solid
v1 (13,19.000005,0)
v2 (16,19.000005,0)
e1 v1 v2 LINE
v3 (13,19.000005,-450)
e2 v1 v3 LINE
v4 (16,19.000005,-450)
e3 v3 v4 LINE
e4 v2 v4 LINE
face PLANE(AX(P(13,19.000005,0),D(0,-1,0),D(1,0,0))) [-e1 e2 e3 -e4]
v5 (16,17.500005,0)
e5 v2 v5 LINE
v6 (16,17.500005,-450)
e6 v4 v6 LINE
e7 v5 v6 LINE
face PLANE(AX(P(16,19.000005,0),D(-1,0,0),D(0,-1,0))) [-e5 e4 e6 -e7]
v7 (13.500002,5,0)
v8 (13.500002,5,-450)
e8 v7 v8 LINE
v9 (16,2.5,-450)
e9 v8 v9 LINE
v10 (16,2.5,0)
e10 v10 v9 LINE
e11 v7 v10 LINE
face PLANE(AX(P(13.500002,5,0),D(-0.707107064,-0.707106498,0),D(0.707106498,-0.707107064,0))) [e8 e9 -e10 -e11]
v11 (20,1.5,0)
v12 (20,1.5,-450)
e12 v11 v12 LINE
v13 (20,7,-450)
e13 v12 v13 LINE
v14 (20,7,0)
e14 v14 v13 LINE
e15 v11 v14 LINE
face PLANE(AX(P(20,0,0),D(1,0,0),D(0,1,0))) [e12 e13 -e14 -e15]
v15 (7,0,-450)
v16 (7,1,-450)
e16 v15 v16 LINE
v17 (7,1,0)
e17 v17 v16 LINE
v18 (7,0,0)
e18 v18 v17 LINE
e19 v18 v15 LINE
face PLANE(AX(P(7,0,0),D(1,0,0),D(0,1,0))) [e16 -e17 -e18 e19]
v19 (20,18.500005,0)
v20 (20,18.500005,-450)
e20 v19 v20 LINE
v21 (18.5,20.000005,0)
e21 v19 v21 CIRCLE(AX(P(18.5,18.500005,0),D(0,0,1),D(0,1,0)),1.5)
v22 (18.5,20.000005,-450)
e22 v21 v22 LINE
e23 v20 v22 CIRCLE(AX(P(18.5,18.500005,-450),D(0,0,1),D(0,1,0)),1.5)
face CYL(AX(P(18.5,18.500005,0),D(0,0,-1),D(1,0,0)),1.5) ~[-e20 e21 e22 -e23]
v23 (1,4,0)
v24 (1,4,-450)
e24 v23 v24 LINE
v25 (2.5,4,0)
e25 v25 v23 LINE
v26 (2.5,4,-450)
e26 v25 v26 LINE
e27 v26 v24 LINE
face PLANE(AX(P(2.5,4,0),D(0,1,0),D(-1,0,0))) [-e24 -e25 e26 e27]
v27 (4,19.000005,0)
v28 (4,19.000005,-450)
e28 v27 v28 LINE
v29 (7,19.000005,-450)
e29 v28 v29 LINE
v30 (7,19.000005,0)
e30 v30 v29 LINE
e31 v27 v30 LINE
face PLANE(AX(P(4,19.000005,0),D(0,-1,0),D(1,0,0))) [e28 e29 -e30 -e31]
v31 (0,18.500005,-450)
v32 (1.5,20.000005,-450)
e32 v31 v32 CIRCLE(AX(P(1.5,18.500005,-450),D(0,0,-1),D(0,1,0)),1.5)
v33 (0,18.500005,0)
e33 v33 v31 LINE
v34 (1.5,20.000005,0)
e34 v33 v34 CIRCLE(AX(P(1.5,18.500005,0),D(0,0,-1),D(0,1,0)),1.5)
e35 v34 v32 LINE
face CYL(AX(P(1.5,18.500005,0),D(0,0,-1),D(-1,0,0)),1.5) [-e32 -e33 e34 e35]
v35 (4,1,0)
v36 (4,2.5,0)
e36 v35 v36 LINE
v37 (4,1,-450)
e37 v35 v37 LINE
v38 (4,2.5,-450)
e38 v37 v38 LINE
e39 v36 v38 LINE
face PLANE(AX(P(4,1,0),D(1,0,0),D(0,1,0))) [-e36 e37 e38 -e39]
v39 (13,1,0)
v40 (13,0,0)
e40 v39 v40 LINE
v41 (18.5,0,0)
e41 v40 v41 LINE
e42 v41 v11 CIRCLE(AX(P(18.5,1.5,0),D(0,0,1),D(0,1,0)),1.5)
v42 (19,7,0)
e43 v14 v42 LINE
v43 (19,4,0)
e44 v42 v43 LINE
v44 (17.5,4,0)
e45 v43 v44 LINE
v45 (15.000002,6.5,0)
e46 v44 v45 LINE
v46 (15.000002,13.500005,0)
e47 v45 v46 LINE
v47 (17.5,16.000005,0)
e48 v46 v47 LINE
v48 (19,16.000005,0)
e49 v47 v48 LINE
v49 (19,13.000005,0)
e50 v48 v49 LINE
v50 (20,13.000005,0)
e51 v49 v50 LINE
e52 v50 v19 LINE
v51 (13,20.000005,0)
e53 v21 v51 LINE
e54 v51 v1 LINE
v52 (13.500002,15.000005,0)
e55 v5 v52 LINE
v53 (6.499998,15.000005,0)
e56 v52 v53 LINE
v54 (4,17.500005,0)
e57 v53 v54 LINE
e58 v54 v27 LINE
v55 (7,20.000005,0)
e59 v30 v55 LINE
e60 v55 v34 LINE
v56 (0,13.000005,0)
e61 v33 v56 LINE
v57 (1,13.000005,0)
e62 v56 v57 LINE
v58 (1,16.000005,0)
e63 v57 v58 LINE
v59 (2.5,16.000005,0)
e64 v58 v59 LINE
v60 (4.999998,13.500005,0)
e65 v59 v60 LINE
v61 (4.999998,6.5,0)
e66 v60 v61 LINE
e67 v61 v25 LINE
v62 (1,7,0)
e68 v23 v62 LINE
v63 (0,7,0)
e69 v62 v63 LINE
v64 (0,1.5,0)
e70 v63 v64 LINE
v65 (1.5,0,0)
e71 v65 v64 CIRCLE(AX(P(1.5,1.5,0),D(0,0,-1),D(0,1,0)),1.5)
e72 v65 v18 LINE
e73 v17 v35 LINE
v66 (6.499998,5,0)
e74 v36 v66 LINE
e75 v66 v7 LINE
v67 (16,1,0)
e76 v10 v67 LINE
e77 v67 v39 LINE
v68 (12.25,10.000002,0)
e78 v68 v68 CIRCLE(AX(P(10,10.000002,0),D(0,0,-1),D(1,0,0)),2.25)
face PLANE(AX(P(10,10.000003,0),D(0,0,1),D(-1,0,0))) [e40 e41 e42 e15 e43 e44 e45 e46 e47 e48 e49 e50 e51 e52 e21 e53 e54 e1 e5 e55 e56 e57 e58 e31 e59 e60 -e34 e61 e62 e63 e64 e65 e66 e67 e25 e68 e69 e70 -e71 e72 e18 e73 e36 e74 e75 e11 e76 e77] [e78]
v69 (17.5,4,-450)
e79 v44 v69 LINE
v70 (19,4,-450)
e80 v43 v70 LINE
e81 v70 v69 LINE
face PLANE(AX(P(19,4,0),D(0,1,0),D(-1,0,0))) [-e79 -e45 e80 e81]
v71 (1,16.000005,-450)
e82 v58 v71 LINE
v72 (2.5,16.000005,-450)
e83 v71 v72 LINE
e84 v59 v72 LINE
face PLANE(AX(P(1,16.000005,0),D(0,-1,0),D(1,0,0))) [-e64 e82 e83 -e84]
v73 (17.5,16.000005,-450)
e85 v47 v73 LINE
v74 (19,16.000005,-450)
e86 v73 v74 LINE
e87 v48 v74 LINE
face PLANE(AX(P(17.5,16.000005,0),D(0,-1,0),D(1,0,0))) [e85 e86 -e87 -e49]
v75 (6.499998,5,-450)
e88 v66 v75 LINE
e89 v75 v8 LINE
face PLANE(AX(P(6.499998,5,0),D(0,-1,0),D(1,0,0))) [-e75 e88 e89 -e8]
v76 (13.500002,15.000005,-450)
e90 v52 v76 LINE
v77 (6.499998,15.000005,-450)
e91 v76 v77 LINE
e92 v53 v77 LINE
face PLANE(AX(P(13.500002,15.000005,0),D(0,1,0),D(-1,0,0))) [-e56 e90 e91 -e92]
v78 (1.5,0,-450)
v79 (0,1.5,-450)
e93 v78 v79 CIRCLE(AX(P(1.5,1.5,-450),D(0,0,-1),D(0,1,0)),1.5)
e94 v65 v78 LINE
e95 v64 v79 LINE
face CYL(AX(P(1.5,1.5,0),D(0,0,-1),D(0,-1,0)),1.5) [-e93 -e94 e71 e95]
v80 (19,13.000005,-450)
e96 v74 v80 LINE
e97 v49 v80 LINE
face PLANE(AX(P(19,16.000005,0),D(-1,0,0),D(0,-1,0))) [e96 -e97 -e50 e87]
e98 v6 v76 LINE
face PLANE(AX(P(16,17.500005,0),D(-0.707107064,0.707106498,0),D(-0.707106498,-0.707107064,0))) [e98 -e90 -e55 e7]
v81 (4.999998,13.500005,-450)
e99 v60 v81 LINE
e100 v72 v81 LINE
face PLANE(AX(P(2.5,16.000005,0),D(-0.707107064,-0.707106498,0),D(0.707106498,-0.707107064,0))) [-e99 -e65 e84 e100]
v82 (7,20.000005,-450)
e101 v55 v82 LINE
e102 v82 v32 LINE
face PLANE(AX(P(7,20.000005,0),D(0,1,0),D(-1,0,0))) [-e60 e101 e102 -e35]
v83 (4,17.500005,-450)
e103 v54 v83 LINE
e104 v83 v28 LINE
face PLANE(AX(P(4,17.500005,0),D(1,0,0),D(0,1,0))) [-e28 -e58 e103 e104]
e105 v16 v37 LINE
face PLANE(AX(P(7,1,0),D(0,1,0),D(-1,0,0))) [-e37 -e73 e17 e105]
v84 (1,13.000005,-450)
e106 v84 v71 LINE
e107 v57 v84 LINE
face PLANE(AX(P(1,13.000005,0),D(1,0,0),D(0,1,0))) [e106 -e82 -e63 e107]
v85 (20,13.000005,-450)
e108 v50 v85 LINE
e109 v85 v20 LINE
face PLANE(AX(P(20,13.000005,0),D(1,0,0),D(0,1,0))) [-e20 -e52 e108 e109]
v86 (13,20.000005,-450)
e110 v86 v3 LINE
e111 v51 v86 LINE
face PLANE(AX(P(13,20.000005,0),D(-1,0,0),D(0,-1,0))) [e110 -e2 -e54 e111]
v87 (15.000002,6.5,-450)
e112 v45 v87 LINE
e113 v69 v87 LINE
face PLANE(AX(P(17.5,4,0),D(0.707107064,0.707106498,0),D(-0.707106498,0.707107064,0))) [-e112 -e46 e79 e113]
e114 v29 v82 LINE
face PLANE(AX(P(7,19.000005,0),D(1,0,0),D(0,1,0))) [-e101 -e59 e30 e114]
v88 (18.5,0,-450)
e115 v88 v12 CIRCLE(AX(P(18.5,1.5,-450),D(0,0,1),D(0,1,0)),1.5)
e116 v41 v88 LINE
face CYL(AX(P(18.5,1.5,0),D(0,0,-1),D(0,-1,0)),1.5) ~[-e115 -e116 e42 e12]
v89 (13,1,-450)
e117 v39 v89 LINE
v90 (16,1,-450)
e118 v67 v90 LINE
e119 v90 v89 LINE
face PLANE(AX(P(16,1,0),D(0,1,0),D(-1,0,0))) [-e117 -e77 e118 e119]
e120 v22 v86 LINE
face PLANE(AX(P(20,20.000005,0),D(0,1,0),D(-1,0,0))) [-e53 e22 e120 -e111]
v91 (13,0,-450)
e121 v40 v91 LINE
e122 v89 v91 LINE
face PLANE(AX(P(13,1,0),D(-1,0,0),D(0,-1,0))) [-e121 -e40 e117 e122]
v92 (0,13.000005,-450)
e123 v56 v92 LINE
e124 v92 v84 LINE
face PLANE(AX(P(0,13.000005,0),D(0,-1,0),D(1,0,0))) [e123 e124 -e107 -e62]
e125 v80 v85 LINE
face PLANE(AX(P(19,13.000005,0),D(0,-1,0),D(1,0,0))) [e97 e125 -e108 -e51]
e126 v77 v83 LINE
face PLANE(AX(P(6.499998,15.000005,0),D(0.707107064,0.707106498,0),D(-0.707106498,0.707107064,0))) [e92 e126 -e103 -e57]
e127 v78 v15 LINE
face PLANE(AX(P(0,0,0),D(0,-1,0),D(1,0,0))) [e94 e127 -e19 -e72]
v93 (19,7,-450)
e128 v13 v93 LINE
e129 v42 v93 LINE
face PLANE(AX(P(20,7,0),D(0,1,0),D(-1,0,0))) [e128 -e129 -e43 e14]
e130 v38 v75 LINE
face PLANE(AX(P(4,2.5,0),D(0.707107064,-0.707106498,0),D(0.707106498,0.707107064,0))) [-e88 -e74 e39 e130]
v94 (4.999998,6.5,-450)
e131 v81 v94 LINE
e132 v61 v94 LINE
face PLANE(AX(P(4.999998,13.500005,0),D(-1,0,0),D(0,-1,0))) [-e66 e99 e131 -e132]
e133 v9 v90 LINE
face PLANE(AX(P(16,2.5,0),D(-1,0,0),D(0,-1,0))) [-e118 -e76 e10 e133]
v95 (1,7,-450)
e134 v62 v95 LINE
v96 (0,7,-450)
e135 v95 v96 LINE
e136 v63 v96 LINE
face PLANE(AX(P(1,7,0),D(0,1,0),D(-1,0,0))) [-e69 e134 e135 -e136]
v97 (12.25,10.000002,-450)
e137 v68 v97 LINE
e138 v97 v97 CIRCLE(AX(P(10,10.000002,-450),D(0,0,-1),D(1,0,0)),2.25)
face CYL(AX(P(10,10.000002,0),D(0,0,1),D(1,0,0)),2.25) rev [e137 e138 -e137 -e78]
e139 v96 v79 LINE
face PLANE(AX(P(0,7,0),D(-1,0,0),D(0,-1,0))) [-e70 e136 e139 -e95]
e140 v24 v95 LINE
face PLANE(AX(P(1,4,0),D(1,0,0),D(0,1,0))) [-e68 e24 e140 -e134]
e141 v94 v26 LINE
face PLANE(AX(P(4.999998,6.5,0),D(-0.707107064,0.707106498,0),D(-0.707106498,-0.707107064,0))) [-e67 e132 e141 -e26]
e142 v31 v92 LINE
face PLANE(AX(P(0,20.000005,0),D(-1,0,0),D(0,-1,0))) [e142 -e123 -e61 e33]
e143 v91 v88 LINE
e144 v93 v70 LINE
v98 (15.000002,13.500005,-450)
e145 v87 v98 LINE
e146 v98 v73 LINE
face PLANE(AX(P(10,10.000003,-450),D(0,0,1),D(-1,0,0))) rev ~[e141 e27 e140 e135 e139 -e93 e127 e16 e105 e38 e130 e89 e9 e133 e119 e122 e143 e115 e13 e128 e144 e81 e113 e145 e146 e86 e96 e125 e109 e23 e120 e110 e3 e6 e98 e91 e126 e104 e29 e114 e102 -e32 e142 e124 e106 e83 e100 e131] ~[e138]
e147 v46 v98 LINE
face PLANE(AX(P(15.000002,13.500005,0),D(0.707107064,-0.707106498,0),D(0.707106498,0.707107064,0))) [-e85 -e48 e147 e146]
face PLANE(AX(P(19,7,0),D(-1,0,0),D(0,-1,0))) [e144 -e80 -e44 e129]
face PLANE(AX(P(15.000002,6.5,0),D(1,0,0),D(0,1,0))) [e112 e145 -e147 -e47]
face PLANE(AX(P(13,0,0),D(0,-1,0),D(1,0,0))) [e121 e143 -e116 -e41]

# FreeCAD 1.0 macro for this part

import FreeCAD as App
import Part
import Sketcher

V = App.Vector


def edges_at(feature, points):
    """Names of the edges that pass closest to the given points."""
    edges = feature.Shape.Edges
    near = lambda p: min(range(len(edges)), key=lambda i: edges[i].distToShape(Part.Vertex(*p))[0])
    return sorted({f"Edge{near(p) + 1}" for p in points})


def add_polygon(sketch, points):
    """Adds a closed chain of lines whose ends are joined by coincident constraints."""
    first, n = sketch.GeometryCount, len(points)
    for a, b in zip(points, points[1:] + points[:1]):
        sketch.addGeometry(Part.LineSegment(App.Vector(*a, 0), App.Vector(*b, 0)), False)
    for i in range(n):
        sketch.addConstraint(Sketcher.Constraint("Coincident", first + i, 2, first + (i + 1) % n, 1))

doc = App.newDocument("Part")
params = doc.addObject("Spreadsheet::Sheet", "Params")
for row, (alias, value) in enumerate([
    ("sketch1_diameter", "4.5 mm"),
    ("sketch1_width", "7 mm"),
    ("sketch1_width2", "1 mm"),
    ("sketch1_width3", "3 mm"),
    ("sketch1_width4", "1.5 mm"),
    ("pad1_length", "450 mm"),
    ("fillet_radius", "1.5 mm"),
], start=1):
    params.set(f"A{row}", alias)
    params.set(f"B{row}", "=" + value)
    params.setAlias(f"B{row}", alias)

body = doc.addObject("PartDesign::Body", "Body")

# Sketch on XY plane
sketch1 = body.newObject("Sketcher::SketchObject", "Sketch")
sketch1.AttachmentSupport = (doc.getObject("XY_Plane"), [""])
sketch1.MapMode = "FlatFace"
add_polygon(sketch1, [(7, 1), (7, 0), (0, 0), (0, 7), (1, 7), (1, 4), (2.5, 4), (5, 6.5), (5, 13.5), (2.5, 16), (1, 16), (1, 13), (0, 13), (0, 20), (7, 20), (7, 19), (4, 19), (4, 17.5), (6.5, 15), (13.5, 15), (16, 17.5), (16, 19), (13, 19), (13, 20), (20, 20), (20, 13), (19, 13), (19, 16), (17.5, 16), (15, 13.5), (15, 6.5), (17.5, 4), (19, 4), (19, 7), (20, 7), (20, 0), (13, 0), (13, 1), (16, 1), (16, 2.5), (13.5, 5), (6.5, 5), (4, 2.5), (4, 1)])  # lines 0-43
sketch1.addGeometry(Part.Circle(V(10, 10, 0), V(0, 0, 1), 2.2), False)  # 44
sketch1.addConstraint([
    Sketcher.Constraint("Vertical", 0),
    Sketcher.Constraint("Horizontal", 1),
    Sketcher.Constraint("Vertical", 2),
    Sketcher.Constraint("Horizontal", 3),
    Sketcher.Constraint("Vertical", 4),
    Sketcher.Constraint("Horizontal", 5),
    Sketcher.Constraint("Vertical", 7),
    Sketcher.Constraint("Horizontal", 9),
    Sketcher.Constraint("Vertical", 10),
    Sketcher.Constraint("Horizontal", 11),
    Sketcher.Constraint("Vertical", 12),
    Sketcher.Constraint("Horizontal", 13),
    Sketcher.Constraint("Vertical", 14),
    Sketcher.Constraint("Horizontal", 15),
    Sketcher.Constraint("Vertical", 16),
    Sketcher.Constraint("Horizontal", 18),
    Sketcher.Constraint("Vertical", 20),
    Sketcher.Constraint("Horizontal", 21),
    Sketcher.Constraint("Vertical", 22),
    Sketcher.Constraint("Horizontal", 23),
    Sketcher.Constraint("Vertical", 24),
    Sketcher.Constraint("Horizontal", 25),
    Sketcher.Constraint("Vertical", 26),
    Sketcher.Constraint("Horizontal", 27),
    Sketcher.Constraint("Vertical", 29),
    Sketcher.Constraint("Horizontal", 31),
    Sketcher.Constraint("Vertical", 32),
    Sketcher.Constraint("Horizontal", 33),
    Sketcher.Constraint("Vertical", 34),
    Sketcher.Constraint("Horizontal", 35),
    Sketcher.Constraint("Vertical", 36),
    Sketcher.Constraint("Horizontal", 37),
    Sketcher.Constraint("Vertical", 38),
    Sketcher.Constraint("Horizontal", 40),
    Sketcher.Constraint("Vertical", 42),
    Sketcher.Constraint("Horizontal", 43),
    Sketcher.Constraint("Coincident", 1, 2, -1, 1),
    Sketcher.Constraint("PointOnObject", 11, 2, -2),
    Sketcher.Constraint("PointOnObject", 34, 2, -1),
    Sketcher.Constraint("Perpendicular", 6, 8),
    Sketcher.Constraint("Parallel", 8, 17),
    Sketcher.Constraint("Perpendicular", 17, 19),
    Sketcher.Constraint("Parallel", 19, 28),
    Sketcher.Constraint("Perpendicular", 28, 30),
    Sketcher.Constraint("Parallel", 30, 39),
    Sketcher.Constraint("Perpendicular", 39, 41),
    Sketcher.Constraint("Horizontal", 16, 2, 19, 2),
    Sketcher.Constraint("Horizontal", 15, 2, 20, 2),
    Sketcher.Constraint("Horizontal", 13, 2, 22, 2),
    Sketcher.Constraint("Horizontal", 11, 2, 24, 2),
    Sketcher.Constraint("Horizontal", 9, 2, 26, 2),
    Sketcher.Constraint("Horizontal", 7, 2, 28, 2),
    Sketcher.Constraint("Horizontal", 6, 2, 29, 2),
    Sketcher.Constraint("Horizontal", 5, 2, 30, 2),
    Sketcher.Constraint("Horizontal", 3, 2, 32, 2),
    Sketcher.Constraint("Horizontal", 38, 2, 41, 2),
    Sketcher.Constraint("Horizontal", 37, 2, 42, 2),
    Sketcher.Constraint("Vertical", 5, 2, 8, 2),
    Sketcher.Constraint("Vertical", 4, 2, 9, 2),
    Sketcher.Constraint("Vertical", 0, 2, 13, 2),
    Sketcher.Constraint("Vertical", 27, 2, 30, 2),
    Sketcher.Constraint("Vertical", 26, 2, 31, 2),
    Sketcher.Constraint("Vertical", 24, 2, 33, 2),
    Sketcher.Constraint("Vertical", 22, 2, 35, 2),
    Sketcher.Constraint("Vertical", 20, 2, 37, 2),
    Sketcher.Constraint("Vertical", 18, 2, 39, 2),
    Sketcher.Constraint("Vertical", 17, 2, 40, 2),
    Sketcher.Constraint("Equal", 15, 21),
    Sketcher.Constraint("Equal", 13, 23),
    Sketcher.Constraint("Equal", 11, 25),
    Sketcher.Constraint("Equal", 9, 27),
    Sketcher.Constraint("Equal", 33, 0),
    Sketcher.Constraint("Equal", 35, 2),
    Sketcher.Constraint("Equal", 43, 4),
    Sketcher.Constraint("Equal", 40, 7),
    Sketcher.Constraint("Equal", 4, 10),
    Sketcher.Constraint("Equal", 2, 12),
    Sketcher.Constraint("Equal", 0, 14),
    Sketcher.Constraint("Equal", 31, 16),
    Sketcher.Constraint("Equal", 20, 38),
    Sketcher.Constraint("Equal", 8, 17),
    Sketcher.Constraint("Diameter", 44, 4.5),
    Sketcher.Constraint("DistanceX", 1, 2, 1, 1, 7.0),
    Sketcher.Constraint("DistanceX", 3, 1, 3, 2, 1.0),
    Sketcher.Constraint("DistanceX", 15, 2, 15, 1, 3.0),
    Sketcher.Constraint("DistanceX", 5, 1, 5, 2, 1.5),
    Sketcher.Constraint("DistanceX", -1, 1, 44, 3, 10.0),
    Sketcher.Constraint("DistanceX", -1, 1, 19, 2, 16.0),
    Sketcher.Constraint("DistanceY", -1, 1, 39, 2, 5.0),
    Sketcher.Constraint("DistanceY", -1, 1, 44, 3, 10.000002),
])
sketch1.setExpression("Constraints[125]", "Params.sketch1_diameter")
sketch1.setExpression("Constraints[126]", "Params.sketch1_width")
sketch1.setExpression("Constraints[127]", "Params.sketch1_width2")
sketch1.setExpression("Constraints[128]", "Params.sketch1_width3")
sketch1.setExpression("Constraints[129]", "Params.sketch1_width4")
pad1 = body.newObject("PartDesign::Pad", "Pad")
pad1.Profile = sketch1
pad1.setExpression("Length", "Params.pad1_length")
pad1.Reversed = True
doc.recompute()

fillet = body.newObject("PartDesign::Fillet", "Fillet")
fillet.Base = (pad1, edges_at(pad1, [
    (20, 20, -225),
    (20, 0, -225),
    (0, 20, -225),
    (0, 0, -225),
]))
fillet.setExpression("Radius", "Params.fillet_radius")

doc.recompute()
